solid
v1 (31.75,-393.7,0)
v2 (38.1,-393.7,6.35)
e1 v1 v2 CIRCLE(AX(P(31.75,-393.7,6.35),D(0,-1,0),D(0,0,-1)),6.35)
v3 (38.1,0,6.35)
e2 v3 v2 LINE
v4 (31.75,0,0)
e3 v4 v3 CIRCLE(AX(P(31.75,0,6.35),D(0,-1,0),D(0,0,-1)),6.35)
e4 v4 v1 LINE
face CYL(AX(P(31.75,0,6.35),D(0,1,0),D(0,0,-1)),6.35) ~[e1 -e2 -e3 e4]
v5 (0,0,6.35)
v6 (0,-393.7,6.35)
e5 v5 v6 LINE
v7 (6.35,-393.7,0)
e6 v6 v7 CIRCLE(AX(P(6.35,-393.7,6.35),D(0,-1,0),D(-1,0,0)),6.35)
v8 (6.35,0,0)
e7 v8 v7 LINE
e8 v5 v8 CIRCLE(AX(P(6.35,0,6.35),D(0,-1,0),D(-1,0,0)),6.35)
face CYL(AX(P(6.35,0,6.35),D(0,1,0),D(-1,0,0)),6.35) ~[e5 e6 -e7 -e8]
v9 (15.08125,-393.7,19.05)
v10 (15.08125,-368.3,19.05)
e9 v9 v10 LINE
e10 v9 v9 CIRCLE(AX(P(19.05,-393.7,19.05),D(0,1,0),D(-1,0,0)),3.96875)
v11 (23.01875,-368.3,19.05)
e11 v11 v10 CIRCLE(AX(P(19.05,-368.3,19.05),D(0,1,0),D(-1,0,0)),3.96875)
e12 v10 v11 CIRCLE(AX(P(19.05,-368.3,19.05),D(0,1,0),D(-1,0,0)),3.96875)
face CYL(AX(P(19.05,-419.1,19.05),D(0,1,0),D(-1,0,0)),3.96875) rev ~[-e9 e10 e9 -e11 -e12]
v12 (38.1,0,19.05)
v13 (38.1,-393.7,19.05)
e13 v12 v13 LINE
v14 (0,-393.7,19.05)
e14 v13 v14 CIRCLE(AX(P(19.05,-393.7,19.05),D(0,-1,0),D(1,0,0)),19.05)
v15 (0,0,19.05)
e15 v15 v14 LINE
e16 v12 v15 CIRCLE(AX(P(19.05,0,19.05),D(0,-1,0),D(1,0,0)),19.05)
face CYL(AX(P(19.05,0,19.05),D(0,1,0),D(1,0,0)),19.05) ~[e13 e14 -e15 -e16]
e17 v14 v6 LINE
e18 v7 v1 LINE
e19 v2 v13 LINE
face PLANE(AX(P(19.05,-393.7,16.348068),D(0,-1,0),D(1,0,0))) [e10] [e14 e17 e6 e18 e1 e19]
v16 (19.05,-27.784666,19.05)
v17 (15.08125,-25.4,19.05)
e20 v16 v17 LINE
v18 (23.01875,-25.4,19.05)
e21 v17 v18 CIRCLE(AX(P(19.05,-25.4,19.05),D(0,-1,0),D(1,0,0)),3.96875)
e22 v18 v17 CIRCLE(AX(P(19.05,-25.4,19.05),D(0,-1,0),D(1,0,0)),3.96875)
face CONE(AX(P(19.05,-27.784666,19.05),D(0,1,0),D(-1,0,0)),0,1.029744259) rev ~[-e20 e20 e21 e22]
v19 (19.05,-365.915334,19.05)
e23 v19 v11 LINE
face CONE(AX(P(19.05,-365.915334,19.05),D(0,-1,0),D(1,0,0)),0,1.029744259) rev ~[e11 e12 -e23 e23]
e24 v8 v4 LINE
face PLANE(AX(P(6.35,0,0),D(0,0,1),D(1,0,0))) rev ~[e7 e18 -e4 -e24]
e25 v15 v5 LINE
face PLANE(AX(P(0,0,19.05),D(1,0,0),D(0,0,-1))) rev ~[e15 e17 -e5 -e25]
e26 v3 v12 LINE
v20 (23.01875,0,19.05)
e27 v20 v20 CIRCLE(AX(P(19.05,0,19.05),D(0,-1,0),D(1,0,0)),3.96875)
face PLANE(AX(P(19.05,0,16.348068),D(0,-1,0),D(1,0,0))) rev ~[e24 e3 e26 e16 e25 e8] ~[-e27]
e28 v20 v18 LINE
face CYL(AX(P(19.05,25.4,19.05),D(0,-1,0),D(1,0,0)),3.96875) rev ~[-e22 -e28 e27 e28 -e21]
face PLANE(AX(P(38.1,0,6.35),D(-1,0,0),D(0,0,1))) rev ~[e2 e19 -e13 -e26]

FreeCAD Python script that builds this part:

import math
import FreeCAD as App
import Part
import Sketcher
Q = App.Units.Quantity

doc = App.newDocument("Part")
params = doc.addObject("Spreadsheet::Sheet", "Params")
for row, (alias, value) in enumerate([
    ("sketch1_width", "1 in"),
    ("sketch1_radius", "0.25 in"),
    ("sketch1_height", "0.5 in"),
    ("pad1_length", "15.5 in"),
    ("sketch2_diameter", "0.3125 in"),
    ("hole_diameter", "0.3125 in"),
    ("hole_depth", "1 in"),
    ("sketch3_diameter", "0.3125 in"),
    ("hole2_diameter", "0.3125 in"),
    ("hole2_depth", "1 in"),
], start=1):
    params.set(f"A{row}", alias)
    params.set(f"B{row}", "=" + value)
    params.setAlias(f"B{row}", alias)

body = doc.addObject("PartDesign::Body", "Body")

sketch1 = doc.addObject("Sketcher::SketchObject", "Sketch")
body.addObject(sketch1)
sketch1.AttachmentSupport = (doc.XZ_Plane, [""])
sketch1.MapMode = "FlatFace"
sketch1.addGeometry(Part.ArcOfCircle(Part.Circle(App.Vector(6.35, 6.35, 0), App.Vector(0, 0, 1), 6.35), math.radians(180), math.radians(270)), False)
sketch1.addGeometry(Part.LineSegment(App.Vector(6.35, 0, 0), App.Vector(31.75, 0, 0)), False)
sketch1.addGeometry(Part.ArcOfCircle(Part.Circle(App.Vector(31.75, 6.35, 0), App.Vector(0, 0, 1), 6.35), math.radians(-90), math.radians(0)), False)
sketch1.addGeometry(Part.LineSegment(App.Vector(38.1, 6.35, 0), App.Vector(38.1, 19.05, 0)), False)
sketch1.addGeometry(Part.ArcOfCircle(Part.Circle(App.Vector(19.05, 19.05, 0), App.Vector(0, 0, 1), 19.05), math.radians(0), math.radians(180)), False)
sketch1.addGeometry(Part.LineSegment(App.Vector(0, 19.05, 0), App.Vector(0, 6.35, 0)), False)
sketch1.addConstraint(Sketcher.Constraint("Tangent", 0, 2, 1, 1))
sketch1.addConstraint(Sketcher.Constraint("Tangent", 1, 2, 2, 1))
sketch1.addConstraint(Sketcher.Constraint("Tangent", 2, 2, 3, 1))
sketch1.addConstraint(Sketcher.Constraint("Tangent", 3, 2, 4, 1))
sketch1.addConstraint(Sketcher.Constraint("Tangent", 4, 2, 5, 1))
sketch1.addConstraint(Sketcher.Constraint("Tangent", 5, 2, 0, 1))
sketch1.addConstraint(Sketcher.Constraint("Horizontal", 1))
sketch1.addConstraint(Sketcher.Constraint("Vertical", 3))
sketch1.addConstraint(Sketcher.Constraint("Vertical", 5))
sketch1.addConstraint(Sketcher.Constraint("Equal", 0, 2))
sketch1.addConstraint(Sketcher.Constraint("PointOnObject", 0, 2, -1))
sketch1.addConstraint(Sketcher.Constraint("PointOnObject", 4, 2, -2))
sketch1.addConstraint(Sketcher.Constraint("DistanceX", 1, 1, 1, 2, Q("1 in")))
sketch1.addConstraint(Sketcher.Constraint("Radius", 0, Q("0.25 in")))
sketch1.addConstraint(Sketcher.Constraint("DistanceY", 3, 1, 3, 2, Q("0.5 in")))
sketch1.setExpression("Constraints[12]", "Params.sketch1_width")
sketch1.setExpression("Constraints[13]", "Params.sketch1_radius")
sketch1.setExpression("Constraints[14]", "Params.sketch1_height")
pad1 = doc.addObject("PartDesign::Pad", "Pad")
body.addObject(pad1)
pad1.Profile = sketch1
pad1.setExpression("Length", "Params.pad1_length")

sketch2 = doc.addObject("Sketcher::SketchObject", "Sketch001")
body.addObject(sketch2)
sketch2.AttachmentSupport = (doc.XZ_Plane, [""])
sketch2.MapMode = "FlatFace"
sketch2.AttachmentOffset = App.Placement(App.Vector(0, 0, 15.5 * 25.4), App.Rotation())
sketch2.addGeometry(Part.Circle(App.Vector(19.05, 19.05, 0), App.Vector(0, 0, 1), 3.96875), False)
sketch2.addConstraint(Sketcher.Constraint("Diameter", 0, Q("0.3125 in")))
sketch2.addConstraint(Sketcher.Constraint("DistanceX", -1, 1, 0, 3, Q("0.75 in")))
sketch2.addConstraint(Sketcher.Constraint("DistanceY", -1, 1, 0, 3, Q("0.75 in")))
sketch2.setExpression("Constraints[0]", "Params.sketch2_diameter")
doc.recompute()
hole = doc.addObject("PartDesign::Hole", "Hole")
body.addObject(hole)
hole.Profile = sketch2
hole.ThreadType = "None"
hole.setExpression("Diameter", "Params.hole_diameter")
hole.DepthType = "Dimension"
hole.setExpression("Depth", "Params.hole_depth")
hole.DrillPoint = "Angled"
hole.DrillPointAngle = 118

sketch3 = doc.addObject("Sketcher::SketchObject", "Sketch002")
body.addObject(sketch3)
sketch3.AttachmentSupport = (doc.XZ_Plane, [""])
sketch3.MapMode = "FlatFace"
sketch3.addGeometry(Part.Circle(App.Vector(19.05, 19.05, 0), App.Vector(0, 0, 1), 3.96875), False)
sketch3.addConstraint(Sketcher.Constraint("Diameter", 0, Q("0.3125 in")))
sketch3.addConstraint(Sketcher.Constraint("DistanceX", -1, 1, 0, 3, Q("0.75 in")))
sketch3.addConstraint(Sketcher.Constraint("DistanceY", -1, 1, 0, 3, Q("0.75 in")))
sketch3.setExpression("Constraints[0]", "Params.sketch3_diameter")
doc.recompute()
hole2 = doc.addObject("PartDesign::Hole", "Hole001")
body.addObject(hole2)
hole2.Profile = sketch3
hole2.ThreadType = "None"
hole2.setExpression("Diameter", "Params.hole2_diameter")
hole2.DepthType = "Dimension"
hole2.setExpression("Depth", "Params.hole2_depth")
hole2.DrillPoint = "Angled"
hole2.DrillPointAngle = 118
hole2.Reversed = True

doc.recompute()
